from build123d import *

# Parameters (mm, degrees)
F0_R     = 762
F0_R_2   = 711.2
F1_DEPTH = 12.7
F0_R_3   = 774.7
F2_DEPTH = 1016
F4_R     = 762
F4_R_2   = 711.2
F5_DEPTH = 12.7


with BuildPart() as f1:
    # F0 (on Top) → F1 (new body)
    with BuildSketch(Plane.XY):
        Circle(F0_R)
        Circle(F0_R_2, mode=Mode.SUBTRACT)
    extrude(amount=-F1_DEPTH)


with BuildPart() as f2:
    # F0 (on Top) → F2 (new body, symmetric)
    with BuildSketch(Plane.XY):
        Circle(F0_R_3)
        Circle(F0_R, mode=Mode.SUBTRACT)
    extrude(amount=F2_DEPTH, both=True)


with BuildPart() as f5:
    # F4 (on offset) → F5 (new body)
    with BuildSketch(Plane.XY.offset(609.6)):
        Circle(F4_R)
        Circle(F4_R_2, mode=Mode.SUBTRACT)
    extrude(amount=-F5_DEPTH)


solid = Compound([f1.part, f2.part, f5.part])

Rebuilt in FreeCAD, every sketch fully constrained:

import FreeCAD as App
import Part
import Sketcher
Q = App.Units.Quantity

doc = App.newDocument("Part")
body = doc.addObject("PartDesign::Body", "Body")

# Sketch on XY plane
sketch1 = doc.addObject("Sketcher::SketchObject", "Sketch")
body.addObject(sketch1)
sketch1.AttachmentSupport = (doc.XY_Plane, [""])
sketch1.MapMode = "FlatFace"
sketch1.addGeometry([
    Part.Circle(App.Vector(0, 0, 0), App.Vector(0, 0, 1), 762),
    Part.Circle(App.Vector(0, 0, 0), App.Vector(0, 0, 1), 711),
], False)
sketch1.addConstraint([
    Sketcher.Constraint("Coincident", 0, 3, -1, 1),
    Sketcher.Constraint("Coincident", 1, 3, -1, 1),
    Sketcher.Constraint("Diameter", 0, Q("60 in")),
    Sketcher.Constraint("Diameter", 1, Q("56 in")),
])
pad1 = doc.addObject("PartDesign::Pad", "Pad")
body.addObject(pad1)
pad1.Profile = sketch1
pad1.Length = Q("0.5 in")
pad1.Reversed = True
body2 = doc.addObject("PartDesign::Body", "Body001")

# Sketch on XY plane
sketch2 = doc.addObject("Sketcher::SketchObject", "Sketch001")
body2.addObject(sketch2)
sketch2.AttachmentSupport = (doc.getObject("XY_Plane001"), [""])
sketch2.MapMode = "FlatFace"
sketch2.addGeometry([
    Part.Circle(App.Vector(0, 0, 0), App.Vector(0, 0, 1), 775),
    Part.Circle(App.Vector(0, 0, 0), App.Vector(0, 0, 1), 762),
], False)
sketch2.addConstraint([
    Sketcher.Constraint("Coincident", 0, 3, -1, 1),
    Sketcher.Constraint("Coincident", 1, 3, -1, 1),
    Sketcher.Constraint("Diameter", 0, Q("61 in")),
    Sketcher.Constraint("Diameter", 1, Q("60 in")),
])
pad2 = doc.addObject("PartDesign::Pad", "Pad001")
body2.addObject(pad2)
pad2.Profile = sketch2
pad2.Length = Q("80 in")
pad2.Midplane = True
body3 = doc.addObject("PartDesign::Body", "Body002")

# Sketch on XY plane
sketch3 = doc.addObject("Sketcher::SketchObject", "Sketch002")
body3.addObject(sketch3)
sketch3.AttachmentSupport = (doc.getObject("XY_Plane002"), [""])
sketch3.MapMode = "FlatFace"
sketch3.AttachmentOffset = App.Placement(App.Vector(0, 0, 24 * 25.4), App.Rotation())
sketch3.addGeometry([
    Part.Circle(App.Vector(0, 0, 0), App.Vector(0, 0, 1), 762),
    Part.Circle(App.Vector(0, 0, 0), App.Vector(0, 0, 1), 711),
], False)
sketch3.addConstraint([
    Sketcher.Constraint("Coincident", 0, 3, -1, 1),
    Sketcher.Constraint("Coincident", 1, 3, -1, 1),
    Sketcher.Constraint("Diameter", 0, Q("60 in")),
    Sketcher.Constraint("Diameter", 1, Q("56 in")),
])
pad3 = doc.addObject("PartDesign::Pad", "Pad002")
body3.addObject(pad3)
pad3.Profile = sketch3
pad3.Length = Q("0.5 in")
pad3.Reversed = True

doc.recompute()
